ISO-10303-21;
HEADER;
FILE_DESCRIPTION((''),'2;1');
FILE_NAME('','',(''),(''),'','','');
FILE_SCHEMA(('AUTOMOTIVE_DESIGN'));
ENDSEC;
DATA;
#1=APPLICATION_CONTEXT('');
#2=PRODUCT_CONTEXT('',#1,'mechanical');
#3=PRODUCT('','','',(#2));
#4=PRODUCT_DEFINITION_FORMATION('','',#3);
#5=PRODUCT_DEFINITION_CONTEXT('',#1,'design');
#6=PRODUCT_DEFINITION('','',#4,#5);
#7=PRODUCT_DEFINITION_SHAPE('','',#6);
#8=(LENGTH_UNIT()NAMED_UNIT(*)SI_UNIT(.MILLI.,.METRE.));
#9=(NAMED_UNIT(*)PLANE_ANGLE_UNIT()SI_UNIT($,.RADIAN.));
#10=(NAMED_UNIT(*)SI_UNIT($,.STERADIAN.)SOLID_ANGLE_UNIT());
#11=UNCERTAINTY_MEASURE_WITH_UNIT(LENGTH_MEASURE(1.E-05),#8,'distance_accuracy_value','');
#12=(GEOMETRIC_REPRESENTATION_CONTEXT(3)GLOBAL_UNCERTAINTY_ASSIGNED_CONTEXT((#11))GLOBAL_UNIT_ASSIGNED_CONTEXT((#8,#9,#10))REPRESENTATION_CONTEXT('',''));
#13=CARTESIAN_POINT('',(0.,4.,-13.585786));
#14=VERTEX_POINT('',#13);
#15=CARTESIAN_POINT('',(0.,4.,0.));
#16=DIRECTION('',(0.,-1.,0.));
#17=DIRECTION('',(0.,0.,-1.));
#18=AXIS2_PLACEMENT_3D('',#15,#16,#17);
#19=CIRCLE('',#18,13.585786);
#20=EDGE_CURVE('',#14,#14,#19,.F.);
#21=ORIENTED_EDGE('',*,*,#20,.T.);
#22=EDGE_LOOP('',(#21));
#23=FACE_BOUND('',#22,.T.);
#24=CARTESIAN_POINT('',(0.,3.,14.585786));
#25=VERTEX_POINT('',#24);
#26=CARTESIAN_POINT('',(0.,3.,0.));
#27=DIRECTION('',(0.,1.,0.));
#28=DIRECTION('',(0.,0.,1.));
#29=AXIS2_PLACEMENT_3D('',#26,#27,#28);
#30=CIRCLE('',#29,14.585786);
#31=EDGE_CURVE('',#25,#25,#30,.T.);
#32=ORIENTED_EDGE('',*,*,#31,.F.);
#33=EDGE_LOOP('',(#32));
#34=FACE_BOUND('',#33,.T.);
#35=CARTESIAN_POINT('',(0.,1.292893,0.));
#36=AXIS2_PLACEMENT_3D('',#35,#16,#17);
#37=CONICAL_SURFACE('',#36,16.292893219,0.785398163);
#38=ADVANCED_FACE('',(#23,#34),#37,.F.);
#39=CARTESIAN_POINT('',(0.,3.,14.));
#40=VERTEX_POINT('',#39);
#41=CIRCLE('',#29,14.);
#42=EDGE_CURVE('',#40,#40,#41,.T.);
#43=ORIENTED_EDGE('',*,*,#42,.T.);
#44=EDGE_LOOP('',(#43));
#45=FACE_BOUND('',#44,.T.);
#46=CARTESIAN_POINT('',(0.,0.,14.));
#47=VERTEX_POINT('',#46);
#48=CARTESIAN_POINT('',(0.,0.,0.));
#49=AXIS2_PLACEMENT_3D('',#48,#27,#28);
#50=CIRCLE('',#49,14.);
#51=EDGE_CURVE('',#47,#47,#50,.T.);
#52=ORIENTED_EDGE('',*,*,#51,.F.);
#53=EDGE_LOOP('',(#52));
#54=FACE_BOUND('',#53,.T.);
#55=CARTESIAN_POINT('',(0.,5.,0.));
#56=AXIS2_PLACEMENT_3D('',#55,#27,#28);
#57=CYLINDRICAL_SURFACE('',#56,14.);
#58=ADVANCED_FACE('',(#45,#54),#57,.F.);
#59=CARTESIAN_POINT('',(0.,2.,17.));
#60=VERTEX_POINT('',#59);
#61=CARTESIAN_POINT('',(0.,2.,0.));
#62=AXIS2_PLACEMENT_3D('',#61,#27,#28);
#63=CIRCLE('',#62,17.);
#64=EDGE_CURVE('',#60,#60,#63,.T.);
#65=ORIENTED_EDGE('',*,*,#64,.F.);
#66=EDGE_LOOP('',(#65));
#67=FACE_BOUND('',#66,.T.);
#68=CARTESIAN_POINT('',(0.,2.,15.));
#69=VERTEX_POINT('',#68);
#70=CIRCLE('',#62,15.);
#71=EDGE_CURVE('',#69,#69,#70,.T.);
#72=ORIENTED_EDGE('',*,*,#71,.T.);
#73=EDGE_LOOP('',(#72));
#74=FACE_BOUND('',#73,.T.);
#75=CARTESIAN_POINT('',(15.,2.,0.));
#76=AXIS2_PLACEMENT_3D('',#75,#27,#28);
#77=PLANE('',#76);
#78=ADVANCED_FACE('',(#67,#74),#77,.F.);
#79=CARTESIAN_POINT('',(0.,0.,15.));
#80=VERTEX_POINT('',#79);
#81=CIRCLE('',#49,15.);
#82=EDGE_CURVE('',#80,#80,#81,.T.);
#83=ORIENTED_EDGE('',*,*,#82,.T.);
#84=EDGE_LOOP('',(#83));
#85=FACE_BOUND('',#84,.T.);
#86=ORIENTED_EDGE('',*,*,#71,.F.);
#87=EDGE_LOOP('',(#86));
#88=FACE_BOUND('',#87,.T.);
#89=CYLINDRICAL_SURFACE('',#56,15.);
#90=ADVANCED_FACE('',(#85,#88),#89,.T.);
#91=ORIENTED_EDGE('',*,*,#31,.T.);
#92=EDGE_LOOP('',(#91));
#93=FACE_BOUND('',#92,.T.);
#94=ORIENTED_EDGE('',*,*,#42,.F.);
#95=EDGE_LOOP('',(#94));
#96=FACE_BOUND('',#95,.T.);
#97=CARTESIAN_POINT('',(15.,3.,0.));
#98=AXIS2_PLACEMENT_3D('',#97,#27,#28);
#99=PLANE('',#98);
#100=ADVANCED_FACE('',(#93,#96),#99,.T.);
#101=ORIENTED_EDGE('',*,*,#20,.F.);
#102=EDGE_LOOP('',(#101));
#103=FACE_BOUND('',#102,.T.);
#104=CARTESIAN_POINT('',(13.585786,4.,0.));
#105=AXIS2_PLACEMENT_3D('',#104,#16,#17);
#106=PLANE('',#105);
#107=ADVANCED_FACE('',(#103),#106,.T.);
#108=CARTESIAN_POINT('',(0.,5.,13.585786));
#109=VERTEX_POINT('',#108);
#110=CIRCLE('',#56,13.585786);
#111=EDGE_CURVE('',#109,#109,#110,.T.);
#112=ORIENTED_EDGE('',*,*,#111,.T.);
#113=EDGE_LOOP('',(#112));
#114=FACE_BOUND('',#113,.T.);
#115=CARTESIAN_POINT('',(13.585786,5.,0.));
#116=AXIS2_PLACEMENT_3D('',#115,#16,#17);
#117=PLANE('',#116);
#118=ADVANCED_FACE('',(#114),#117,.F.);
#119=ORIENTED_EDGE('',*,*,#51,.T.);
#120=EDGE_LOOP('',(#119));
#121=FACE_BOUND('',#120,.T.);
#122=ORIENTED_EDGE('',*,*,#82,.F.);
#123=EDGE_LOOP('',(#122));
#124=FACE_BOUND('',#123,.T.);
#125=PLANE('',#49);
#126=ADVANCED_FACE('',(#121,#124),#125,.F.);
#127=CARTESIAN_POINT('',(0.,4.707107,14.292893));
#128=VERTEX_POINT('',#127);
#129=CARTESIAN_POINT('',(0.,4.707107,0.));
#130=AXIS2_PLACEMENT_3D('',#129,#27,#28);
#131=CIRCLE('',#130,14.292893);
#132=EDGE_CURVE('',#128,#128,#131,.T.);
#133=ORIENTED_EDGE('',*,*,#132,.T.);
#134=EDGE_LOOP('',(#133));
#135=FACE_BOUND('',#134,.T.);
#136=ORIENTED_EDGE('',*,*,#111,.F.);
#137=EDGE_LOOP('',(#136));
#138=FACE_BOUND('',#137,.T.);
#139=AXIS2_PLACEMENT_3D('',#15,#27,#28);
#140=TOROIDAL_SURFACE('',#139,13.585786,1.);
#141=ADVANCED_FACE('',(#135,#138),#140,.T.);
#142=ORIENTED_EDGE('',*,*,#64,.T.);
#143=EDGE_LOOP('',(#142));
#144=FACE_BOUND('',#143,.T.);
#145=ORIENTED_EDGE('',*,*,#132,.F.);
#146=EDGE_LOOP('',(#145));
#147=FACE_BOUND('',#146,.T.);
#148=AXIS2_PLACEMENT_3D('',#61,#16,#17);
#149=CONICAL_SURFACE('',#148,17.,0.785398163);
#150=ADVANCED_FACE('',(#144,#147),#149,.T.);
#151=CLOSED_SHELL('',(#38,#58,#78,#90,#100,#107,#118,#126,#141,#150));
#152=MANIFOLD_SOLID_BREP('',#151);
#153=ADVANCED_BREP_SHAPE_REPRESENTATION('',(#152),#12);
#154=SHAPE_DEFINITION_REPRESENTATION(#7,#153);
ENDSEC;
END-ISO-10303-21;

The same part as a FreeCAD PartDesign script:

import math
import FreeCAD as App
import Part
import Sketcher

V = App.Vector
Q = App.Units.Quantity


def faces_at(feature, points):
    """Names of the faces that lie closest to the given points."""
    faces = feature.Shape.Faces
    near = lambda p: min(range(len(faces)), key=lambda i: faces[i].distToShape(Part.Vertex(*p))[0])
    return sorted({f"Face{near(p) + 1}" for p in points})

doc = App.newDocument("Part")
body = doc.addObject("PartDesign::Body", "Body")

# Sketch on XY plane
sketch1 = body.newObject("Sketcher::SketchObject", "Sketch")
sketch1.AttachmentSupport = (doc.getObject("XY_Plane"), [""])
sketch1.MapMode = "FlatFace"
sketch1.addGeometry([
    Part.LineSegment(V(15, 0, 0), V(15, 2, 0)),  # 0
    Part.LineSegment(V(15, 2, 0), V(17, 2, 0)),  # 1
    Part.LineSegment(V(17, 2, 0), V(14.3, 4.7, 0)),  # 2
    Part.ArcOfCircle(Part.Circle(V(13.6, 4, 0), V(0, 0, 1), 1), math.radians(45), math.radians(90)),  # 3
    Part.LineSegment(V(13.6, 5, 0), V(0, 5, 0)),  # 4
    Part.LineSegment(V(0, 5, 0), V(0, 0, 0)),  # 5
    Part.LineSegment(V(0, 0, 0), V(15, 0, 0)),  # 6
], False)
sketch1.addConstraint([
    Sketcher.Constraint("Coincident", 0, 2, 1, 1),
    Sketcher.Constraint("Coincident", 1, 2, 2, 1),
    Sketcher.Constraint("Tangent", 2, 2, 3, 1),
    Sketcher.Constraint("Tangent", 3, 2, 4, 1),
    Sketcher.Constraint("Coincident", 4, 2, 5, 1),
    Sketcher.Constraint("Coincident", 5, 2, 6, 1),
    Sketcher.Constraint("Coincident", 6, 2, 0, 1),
    Sketcher.Constraint("Vertical", 0),
    Sketcher.Constraint("Horizontal", 1),
    Sketcher.Constraint("Horizontal", 4),
    Sketcher.Constraint("Vertical", 5),
    Sketcher.Constraint("Horizontal", 6),
    Sketcher.Constraint("Coincident", 5, 2, -1, 1),
    Sketcher.Constraint("Equal", 1, 0),
    Sketcher.Constraint("Radius", 3, 1.0),
    Sketcher.Constraint("DistanceX", 1, 1, 1, 2, 2.0),
    Sketcher.Constraint("DistanceX", 6, 1, 6, 2, 15.0),
    Sketcher.Constraint("DistanceY", 5, 2, 5, 1, 5.0),
    Sketcher.Constraint("Angle", 2, Q("135 deg")),
])
revolution = body.newObject("PartDesign::Revolution", "Revolution")
revolution.Profile = sketch1
revolution.ReferenceAxis = (sketch1, ["V_Axis"])
revolution.Angle = 360
doc.recompute()

thickness = body.newObject("PartDesign::Thickness", "Thickness")
thickness.Base = (revolution, faces_at(revolution, [(0, 0, 0)]))
thickness.Value = 1
thickness.Reversed = True
thickness.Join = "Intersection"

doc.recompute()
